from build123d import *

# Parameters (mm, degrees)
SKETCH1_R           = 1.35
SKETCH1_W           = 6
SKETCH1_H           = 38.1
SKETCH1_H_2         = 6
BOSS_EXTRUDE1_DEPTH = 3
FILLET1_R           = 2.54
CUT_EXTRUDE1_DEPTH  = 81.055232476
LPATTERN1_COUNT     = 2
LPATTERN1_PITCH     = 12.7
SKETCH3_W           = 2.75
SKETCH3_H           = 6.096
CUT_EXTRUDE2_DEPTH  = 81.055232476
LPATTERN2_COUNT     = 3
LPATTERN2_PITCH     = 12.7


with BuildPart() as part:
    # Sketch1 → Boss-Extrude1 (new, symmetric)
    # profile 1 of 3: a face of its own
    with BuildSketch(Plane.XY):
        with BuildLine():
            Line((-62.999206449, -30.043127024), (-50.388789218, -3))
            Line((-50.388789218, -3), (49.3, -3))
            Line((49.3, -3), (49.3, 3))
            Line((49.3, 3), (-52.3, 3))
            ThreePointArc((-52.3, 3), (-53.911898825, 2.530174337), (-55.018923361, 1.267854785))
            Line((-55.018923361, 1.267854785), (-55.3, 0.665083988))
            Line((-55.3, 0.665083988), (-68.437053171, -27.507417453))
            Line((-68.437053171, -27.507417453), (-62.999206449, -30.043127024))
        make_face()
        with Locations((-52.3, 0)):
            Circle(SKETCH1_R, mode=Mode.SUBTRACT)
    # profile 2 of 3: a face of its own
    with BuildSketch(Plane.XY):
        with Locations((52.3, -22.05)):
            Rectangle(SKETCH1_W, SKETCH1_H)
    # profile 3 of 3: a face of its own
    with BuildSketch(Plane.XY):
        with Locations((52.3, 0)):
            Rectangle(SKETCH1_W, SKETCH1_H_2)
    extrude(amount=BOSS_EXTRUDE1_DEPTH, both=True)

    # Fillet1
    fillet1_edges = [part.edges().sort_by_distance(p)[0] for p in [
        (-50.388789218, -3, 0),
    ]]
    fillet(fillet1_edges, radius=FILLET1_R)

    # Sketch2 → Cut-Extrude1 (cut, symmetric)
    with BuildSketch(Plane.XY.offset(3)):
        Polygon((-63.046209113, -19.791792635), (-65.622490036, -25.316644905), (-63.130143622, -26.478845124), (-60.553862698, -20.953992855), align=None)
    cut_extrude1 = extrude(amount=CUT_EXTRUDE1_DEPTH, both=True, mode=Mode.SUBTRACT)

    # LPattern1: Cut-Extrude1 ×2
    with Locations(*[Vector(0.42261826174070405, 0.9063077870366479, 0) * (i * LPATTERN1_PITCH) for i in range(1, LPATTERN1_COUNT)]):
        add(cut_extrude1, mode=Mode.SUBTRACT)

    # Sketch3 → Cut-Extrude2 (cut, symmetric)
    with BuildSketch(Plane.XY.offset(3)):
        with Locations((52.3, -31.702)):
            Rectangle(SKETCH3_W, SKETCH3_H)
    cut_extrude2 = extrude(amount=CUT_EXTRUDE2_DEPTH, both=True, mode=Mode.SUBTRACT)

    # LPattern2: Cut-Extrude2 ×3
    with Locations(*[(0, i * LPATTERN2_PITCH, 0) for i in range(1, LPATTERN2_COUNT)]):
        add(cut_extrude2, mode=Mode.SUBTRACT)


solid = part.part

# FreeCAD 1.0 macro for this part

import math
import FreeCAD as App
import Part
import Sketcher
from FreeCAD import Vector
Q = App.Units.Quantity


def edges_at(feature, points):
    """Names of the edges that pass closest to the given points."""
    edges = feature.Shape.Edges
    near = lambda p: min(range(len(edges)), key=lambda i: edges[i].distToShape(Part.Vertex(*p))[0])
    return sorted({f"Edge{near(p) + 1}" for p in points})

doc = App.newDocument("Part")
body = doc.addObject("PartDesign::Body", "Body")

sketch1 = doc.addObject("Sketcher::SketchObject", "Sketch")
body.addObject(sketch1)
sketch1.AttachmentSupport = (doc.XY_Plane, [""])
sketch1.MapMode = "FlatFace"
sketch1.addGeometry([
    Part.LineSegment(Vector(-62.999206, -30.043127, 0), Vector(-50.388789, -3, 0)),
    Part.LineSegment(Vector(-50.388789, -3, 0), Vector(49.3, -3, 0)),
    Part.LineSegment(Vector(49.3, -3, 0), Vector(49.3, -41.1, 0)),
    Part.LineSegment(Vector(49.3, -41.1, 0), Vector(55.3, -41.1, 0)),
    Part.LineSegment(Vector(55.3, -41.1, 0), Vector(55.3, 3, 0)),
    Part.LineSegment(Vector(55.3, 3, 0), Vector(-52.3, 3, 0)),
    Part.ArcOfCircle(Part.Circle(Vector(-52.3, 0, 0), Vector(0, 0, 1), 3), math.radians(90), math.radians(155)),
    Part.LineSegment(Vector(-55.018923, 1.267855, 0), Vector(-55.3, 0.665084, 0)),
    Part.LineSegment(Vector(-55.3, 0.665084, 0), Vector(-68.437053, -27.507417, 0)),
    Part.LineSegment(Vector(-68.437053, -27.507417, 0), Vector(-62.999206, -30.043127, 0)),
    Part.Circle(Vector(-52.3, 0, 0), Vector(0, 0, 1), 1.35),
], False)
sketch1.addConstraint([
    Sketcher.Constraint("Coincident", 0, 2, 1, 1),
    Sketcher.Constraint("Coincident", 1, 2, 2, 1),
    Sketcher.Constraint("Coincident", 2, 2, 3, 1),
    Sketcher.Constraint("Coincident", 3, 2, 4, 1),
    Sketcher.Constraint("Coincident", 4, 2, 5, 1),
    Sketcher.Constraint("Tangent", 5, 2, 6, 1),
    Sketcher.Constraint("Tangent", 6, 2, 7, 1),
    Sketcher.Constraint("Coincident", 7, 2, 8, 1),
    Sketcher.Constraint("Coincident", 8, 2, 9, 1),
    Sketcher.Constraint("Coincident", 9, 2, 0, 1),
    Sketcher.Constraint("Horizontal", 1),
    Sketcher.Constraint("Vertical", 2),
    Sketcher.Constraint("Horizontal", 3),
    Sketcher.Constraint("Vertical", 4),
    Sketcher.Constraint("Horizontal", 5),
    Sketcher.Constraint("Coincident", 10, 3, 6, 3),
    Sketcher.Constraint("PointOnObject", 6, 3, -1),
    Sketcher.Constraint("Parallel", 0, 7),
    Sketcher.Constraint("Parallel", 7, 8),
    Sketcher.Constraint("Perpendicular", 8, 9),
    Sketcher.Constraint("Radius", 6, Q("3 mm")),
    Sketcher.Constraint("Diameter", 10, Q("2.7 mm")),
    Sketcher.Constraint("DistanceX", 3, 1, 3, 2, Q("6 mm")),
    Sketcher.Constraint("Angle", 0, Q("65 deg")),
    Sketcher.Constraint("Distance", 9, Q("6 mm")),
    Sketcher.Constraint("DistanceX", 5, 2, 5, 1, Q("107.6 mm")),
    Sketcher.Constraint("DistanceY", 2, 2, 2, 1, Q("38.1 mm")),
    Sketcher.Constraint("DistanceY", 4, 1, 4, 2, Q("44.1 mm")),
    Sketcher.Constraint("DistanceX", 7, 2, 10, 3, Q("3 mm")),
    Sketcher.Constraint("DistanceX", 6, 3, -1, 1, Q("52.3 mm")),
    Sketcher.Constraint("DistanceY", 8, 2, 7, 2, Q("28.172501 mm")),
])
pad1 = doc.addObject("PartDesign::Pad", "Pad")
body.addObject(pad1)
pad1.Profile = sketch1
pad1.Length = 6
pad1.Midplane = True
doc.recompute()

fillet = doc.addObject("PartDesign::Fillet", "Fillet")
body.addObject(fillet)
fillet.Base = (pad1, edges_at(pad1, [(-50.389, -3, 0)]))
fillet.Radius = 2.54

sketch2 = doc.addObject("Sketcher::SketchObject", "Sketch001")
body.addObject(sketch2)
sketch2.AttachmentSupport = (doc.XY_Plane, [""])
sketch2.MapMode = "FlatFace"
sketch2.AttachmentOffset = App.Placement(Vector(0, 0, 3), App.Rotation())
sketch2.addGeometry([
    Part.LineSegment(Vector(-63.046209, -19.791793, 0), Vector(-65.62249, -25.316645, 0)),
    Part.LineSegment(Vector(-65.62249, -25.316645, 0), Vector(-63.130144, -26.478845, 0)),
    Part.LineSegment(Vector(-63.130144, -26.478845, 0), Vector(-60.553863, -20.953993, 0)),
    Part.LineSegment(Vector(-60.553863, -20.953993, 0), Vector(-63.046209, -19.791793, 0)),
], False)
sketch2.addConstraint([
    Sketcher.Constraint("Coincident", 0, 2, 1, 1),
    Sketcher.Constraint("Coincident", 1, 2, 2, 1),
    Sketcher.Constraint("Coincident", 2, 2, 3, 1),
    Sketcher.Constraint("Coincident", 3, 2, 0, 1),
    Sketcher.Constraint("Perpendicular", 0, 1),
    Sketcher.Constraint("Perpendicular", 1, 2),
    Sketcher.Constraint("Perpendicular", 2, 3),
    Sketcher.Constraint("Angle", 0, Q("-115 deg")),
    Sketcher.Constraint("Distance", 1, Q("2.75 mm")),
    Sketcher.Constraint("Distance", 0, Q("6.096 mm")),
    Sketcher.Constraint("DistanceX", 0, 2, -1, 1, Q("65.62249 mm")),
    Sketcher.Constraint("DistanceY", 0, 2, -1, 1, Q("25.316645 mm")),
])
pocket1 = doc.addObject("PartDesign::Pocket", "Pocket")
body.addObject(pocket1)
pocket1.Profile = sketch2
pocket1.Length = 162.110465
pocket1.Midplane = True
doc.recompute()

datumline = doc.addObject("PartDesign::Line", "DatumLine")
body.addObject(datumline)
datumline.Placement = App.Placement(Vector(0, 0, 0), App.Rotation(Vector(0, 0, 1), Vector(0.422618262, 0.906307787, 0)))
linearpattern = doc.addObject("PartDesign::LinearPattern", "LinearPattern")
body.addObject(linearpattern)
linearpattern.Originals = [pocket1]
linearpattern.Direction = (datumline, [""])
linearpattern.Mode = "offset"
linearpattern.Offset = 12.7
linearpattern.Occurrences = 2
body.Tip = linearpattern

sketch3 = doc.addObject("Sketcher::SketchObject", "Sketch002")
body.addObject(sketch3)
sketch3.AttachmentSupport = (doc.XY_Plane, [""])
sketch3.MapMode = "FlatFace"
sketch3.AttachmentOffset = App.Placement(Vector(0, 0, 3), App.Rotation())
sketch3.addGeometry([
    Part.LineSegment(Vector(50.925, -28.654, 0), Vector(50.925, -34.75, 0)),
    Part.LineSegment(Vector(50.925, -34.75, 0), Vector(53.675, -34.75, 0)),
    Part.LineSegment(Vector(53.675, -34.75, 0), Vector(53.675, -28.654, 0)),
    Part.LineSegment(Vector(53.675, -28.654, 0), Vector(50.925, -28.654, 0)),
], False)
sketch3.addConstraint([
    Sketcher.Constraint("Coincident", 0, 2, 1, 1),
    Sketcher.Constraint("Coincident", 1, 2, 2, 1),
    Sketcher.Constraint("Coincident", 2, 2, 3, 1),
    Sketcher.Constraint("Coincident", 3, 2, 0, 1),
    Sketcher.Constraint("Vertical", 0),
    Sketcher.Constraint("Horizontal", 1),
    Sketcher.Constraint("Vertical", 2),
    Sketcher.Constraint("Horizontal", 3),
    Sketcher.Constraint("DistanceX", 1, 1, 1, 2, Q("2.75 mm")),
    Sketcher.Constraint("DistanceY", 0, 2, 0, 1, Q("6.096 mm")),
    Sketcher.Constraint("DistanceY", 0, 2, -1, 1, Q("34.75 mm")),
    Sketcher.Constraint("DistanceX", -1, 1, 0, 2, Q("50.925 mm")),
])
pocket2 = doc.addObject("PartDesign::Pocket", "Pocket001")
body.addObject(pocket2)
pocket2.Profile = sketch3
pocket2.Length = 162.110465
pocket2.Midplane = True
doc.recompute()

linearpattern2 = doc.addObject("PartDesign::LinearPattern", "LinearPattern001")
body.addObject(linearpattern2)
linearpattern2.Originals = [pocket2]
linearpattern2.Direction = (doc.Y_Axis, [""])
linearpattern2.Mode = "offset"
linearpattern2.Offset = 12.7
linearpattern2.Occurrences = 3
body.Tip = linearpattern2

doc.recompute()
